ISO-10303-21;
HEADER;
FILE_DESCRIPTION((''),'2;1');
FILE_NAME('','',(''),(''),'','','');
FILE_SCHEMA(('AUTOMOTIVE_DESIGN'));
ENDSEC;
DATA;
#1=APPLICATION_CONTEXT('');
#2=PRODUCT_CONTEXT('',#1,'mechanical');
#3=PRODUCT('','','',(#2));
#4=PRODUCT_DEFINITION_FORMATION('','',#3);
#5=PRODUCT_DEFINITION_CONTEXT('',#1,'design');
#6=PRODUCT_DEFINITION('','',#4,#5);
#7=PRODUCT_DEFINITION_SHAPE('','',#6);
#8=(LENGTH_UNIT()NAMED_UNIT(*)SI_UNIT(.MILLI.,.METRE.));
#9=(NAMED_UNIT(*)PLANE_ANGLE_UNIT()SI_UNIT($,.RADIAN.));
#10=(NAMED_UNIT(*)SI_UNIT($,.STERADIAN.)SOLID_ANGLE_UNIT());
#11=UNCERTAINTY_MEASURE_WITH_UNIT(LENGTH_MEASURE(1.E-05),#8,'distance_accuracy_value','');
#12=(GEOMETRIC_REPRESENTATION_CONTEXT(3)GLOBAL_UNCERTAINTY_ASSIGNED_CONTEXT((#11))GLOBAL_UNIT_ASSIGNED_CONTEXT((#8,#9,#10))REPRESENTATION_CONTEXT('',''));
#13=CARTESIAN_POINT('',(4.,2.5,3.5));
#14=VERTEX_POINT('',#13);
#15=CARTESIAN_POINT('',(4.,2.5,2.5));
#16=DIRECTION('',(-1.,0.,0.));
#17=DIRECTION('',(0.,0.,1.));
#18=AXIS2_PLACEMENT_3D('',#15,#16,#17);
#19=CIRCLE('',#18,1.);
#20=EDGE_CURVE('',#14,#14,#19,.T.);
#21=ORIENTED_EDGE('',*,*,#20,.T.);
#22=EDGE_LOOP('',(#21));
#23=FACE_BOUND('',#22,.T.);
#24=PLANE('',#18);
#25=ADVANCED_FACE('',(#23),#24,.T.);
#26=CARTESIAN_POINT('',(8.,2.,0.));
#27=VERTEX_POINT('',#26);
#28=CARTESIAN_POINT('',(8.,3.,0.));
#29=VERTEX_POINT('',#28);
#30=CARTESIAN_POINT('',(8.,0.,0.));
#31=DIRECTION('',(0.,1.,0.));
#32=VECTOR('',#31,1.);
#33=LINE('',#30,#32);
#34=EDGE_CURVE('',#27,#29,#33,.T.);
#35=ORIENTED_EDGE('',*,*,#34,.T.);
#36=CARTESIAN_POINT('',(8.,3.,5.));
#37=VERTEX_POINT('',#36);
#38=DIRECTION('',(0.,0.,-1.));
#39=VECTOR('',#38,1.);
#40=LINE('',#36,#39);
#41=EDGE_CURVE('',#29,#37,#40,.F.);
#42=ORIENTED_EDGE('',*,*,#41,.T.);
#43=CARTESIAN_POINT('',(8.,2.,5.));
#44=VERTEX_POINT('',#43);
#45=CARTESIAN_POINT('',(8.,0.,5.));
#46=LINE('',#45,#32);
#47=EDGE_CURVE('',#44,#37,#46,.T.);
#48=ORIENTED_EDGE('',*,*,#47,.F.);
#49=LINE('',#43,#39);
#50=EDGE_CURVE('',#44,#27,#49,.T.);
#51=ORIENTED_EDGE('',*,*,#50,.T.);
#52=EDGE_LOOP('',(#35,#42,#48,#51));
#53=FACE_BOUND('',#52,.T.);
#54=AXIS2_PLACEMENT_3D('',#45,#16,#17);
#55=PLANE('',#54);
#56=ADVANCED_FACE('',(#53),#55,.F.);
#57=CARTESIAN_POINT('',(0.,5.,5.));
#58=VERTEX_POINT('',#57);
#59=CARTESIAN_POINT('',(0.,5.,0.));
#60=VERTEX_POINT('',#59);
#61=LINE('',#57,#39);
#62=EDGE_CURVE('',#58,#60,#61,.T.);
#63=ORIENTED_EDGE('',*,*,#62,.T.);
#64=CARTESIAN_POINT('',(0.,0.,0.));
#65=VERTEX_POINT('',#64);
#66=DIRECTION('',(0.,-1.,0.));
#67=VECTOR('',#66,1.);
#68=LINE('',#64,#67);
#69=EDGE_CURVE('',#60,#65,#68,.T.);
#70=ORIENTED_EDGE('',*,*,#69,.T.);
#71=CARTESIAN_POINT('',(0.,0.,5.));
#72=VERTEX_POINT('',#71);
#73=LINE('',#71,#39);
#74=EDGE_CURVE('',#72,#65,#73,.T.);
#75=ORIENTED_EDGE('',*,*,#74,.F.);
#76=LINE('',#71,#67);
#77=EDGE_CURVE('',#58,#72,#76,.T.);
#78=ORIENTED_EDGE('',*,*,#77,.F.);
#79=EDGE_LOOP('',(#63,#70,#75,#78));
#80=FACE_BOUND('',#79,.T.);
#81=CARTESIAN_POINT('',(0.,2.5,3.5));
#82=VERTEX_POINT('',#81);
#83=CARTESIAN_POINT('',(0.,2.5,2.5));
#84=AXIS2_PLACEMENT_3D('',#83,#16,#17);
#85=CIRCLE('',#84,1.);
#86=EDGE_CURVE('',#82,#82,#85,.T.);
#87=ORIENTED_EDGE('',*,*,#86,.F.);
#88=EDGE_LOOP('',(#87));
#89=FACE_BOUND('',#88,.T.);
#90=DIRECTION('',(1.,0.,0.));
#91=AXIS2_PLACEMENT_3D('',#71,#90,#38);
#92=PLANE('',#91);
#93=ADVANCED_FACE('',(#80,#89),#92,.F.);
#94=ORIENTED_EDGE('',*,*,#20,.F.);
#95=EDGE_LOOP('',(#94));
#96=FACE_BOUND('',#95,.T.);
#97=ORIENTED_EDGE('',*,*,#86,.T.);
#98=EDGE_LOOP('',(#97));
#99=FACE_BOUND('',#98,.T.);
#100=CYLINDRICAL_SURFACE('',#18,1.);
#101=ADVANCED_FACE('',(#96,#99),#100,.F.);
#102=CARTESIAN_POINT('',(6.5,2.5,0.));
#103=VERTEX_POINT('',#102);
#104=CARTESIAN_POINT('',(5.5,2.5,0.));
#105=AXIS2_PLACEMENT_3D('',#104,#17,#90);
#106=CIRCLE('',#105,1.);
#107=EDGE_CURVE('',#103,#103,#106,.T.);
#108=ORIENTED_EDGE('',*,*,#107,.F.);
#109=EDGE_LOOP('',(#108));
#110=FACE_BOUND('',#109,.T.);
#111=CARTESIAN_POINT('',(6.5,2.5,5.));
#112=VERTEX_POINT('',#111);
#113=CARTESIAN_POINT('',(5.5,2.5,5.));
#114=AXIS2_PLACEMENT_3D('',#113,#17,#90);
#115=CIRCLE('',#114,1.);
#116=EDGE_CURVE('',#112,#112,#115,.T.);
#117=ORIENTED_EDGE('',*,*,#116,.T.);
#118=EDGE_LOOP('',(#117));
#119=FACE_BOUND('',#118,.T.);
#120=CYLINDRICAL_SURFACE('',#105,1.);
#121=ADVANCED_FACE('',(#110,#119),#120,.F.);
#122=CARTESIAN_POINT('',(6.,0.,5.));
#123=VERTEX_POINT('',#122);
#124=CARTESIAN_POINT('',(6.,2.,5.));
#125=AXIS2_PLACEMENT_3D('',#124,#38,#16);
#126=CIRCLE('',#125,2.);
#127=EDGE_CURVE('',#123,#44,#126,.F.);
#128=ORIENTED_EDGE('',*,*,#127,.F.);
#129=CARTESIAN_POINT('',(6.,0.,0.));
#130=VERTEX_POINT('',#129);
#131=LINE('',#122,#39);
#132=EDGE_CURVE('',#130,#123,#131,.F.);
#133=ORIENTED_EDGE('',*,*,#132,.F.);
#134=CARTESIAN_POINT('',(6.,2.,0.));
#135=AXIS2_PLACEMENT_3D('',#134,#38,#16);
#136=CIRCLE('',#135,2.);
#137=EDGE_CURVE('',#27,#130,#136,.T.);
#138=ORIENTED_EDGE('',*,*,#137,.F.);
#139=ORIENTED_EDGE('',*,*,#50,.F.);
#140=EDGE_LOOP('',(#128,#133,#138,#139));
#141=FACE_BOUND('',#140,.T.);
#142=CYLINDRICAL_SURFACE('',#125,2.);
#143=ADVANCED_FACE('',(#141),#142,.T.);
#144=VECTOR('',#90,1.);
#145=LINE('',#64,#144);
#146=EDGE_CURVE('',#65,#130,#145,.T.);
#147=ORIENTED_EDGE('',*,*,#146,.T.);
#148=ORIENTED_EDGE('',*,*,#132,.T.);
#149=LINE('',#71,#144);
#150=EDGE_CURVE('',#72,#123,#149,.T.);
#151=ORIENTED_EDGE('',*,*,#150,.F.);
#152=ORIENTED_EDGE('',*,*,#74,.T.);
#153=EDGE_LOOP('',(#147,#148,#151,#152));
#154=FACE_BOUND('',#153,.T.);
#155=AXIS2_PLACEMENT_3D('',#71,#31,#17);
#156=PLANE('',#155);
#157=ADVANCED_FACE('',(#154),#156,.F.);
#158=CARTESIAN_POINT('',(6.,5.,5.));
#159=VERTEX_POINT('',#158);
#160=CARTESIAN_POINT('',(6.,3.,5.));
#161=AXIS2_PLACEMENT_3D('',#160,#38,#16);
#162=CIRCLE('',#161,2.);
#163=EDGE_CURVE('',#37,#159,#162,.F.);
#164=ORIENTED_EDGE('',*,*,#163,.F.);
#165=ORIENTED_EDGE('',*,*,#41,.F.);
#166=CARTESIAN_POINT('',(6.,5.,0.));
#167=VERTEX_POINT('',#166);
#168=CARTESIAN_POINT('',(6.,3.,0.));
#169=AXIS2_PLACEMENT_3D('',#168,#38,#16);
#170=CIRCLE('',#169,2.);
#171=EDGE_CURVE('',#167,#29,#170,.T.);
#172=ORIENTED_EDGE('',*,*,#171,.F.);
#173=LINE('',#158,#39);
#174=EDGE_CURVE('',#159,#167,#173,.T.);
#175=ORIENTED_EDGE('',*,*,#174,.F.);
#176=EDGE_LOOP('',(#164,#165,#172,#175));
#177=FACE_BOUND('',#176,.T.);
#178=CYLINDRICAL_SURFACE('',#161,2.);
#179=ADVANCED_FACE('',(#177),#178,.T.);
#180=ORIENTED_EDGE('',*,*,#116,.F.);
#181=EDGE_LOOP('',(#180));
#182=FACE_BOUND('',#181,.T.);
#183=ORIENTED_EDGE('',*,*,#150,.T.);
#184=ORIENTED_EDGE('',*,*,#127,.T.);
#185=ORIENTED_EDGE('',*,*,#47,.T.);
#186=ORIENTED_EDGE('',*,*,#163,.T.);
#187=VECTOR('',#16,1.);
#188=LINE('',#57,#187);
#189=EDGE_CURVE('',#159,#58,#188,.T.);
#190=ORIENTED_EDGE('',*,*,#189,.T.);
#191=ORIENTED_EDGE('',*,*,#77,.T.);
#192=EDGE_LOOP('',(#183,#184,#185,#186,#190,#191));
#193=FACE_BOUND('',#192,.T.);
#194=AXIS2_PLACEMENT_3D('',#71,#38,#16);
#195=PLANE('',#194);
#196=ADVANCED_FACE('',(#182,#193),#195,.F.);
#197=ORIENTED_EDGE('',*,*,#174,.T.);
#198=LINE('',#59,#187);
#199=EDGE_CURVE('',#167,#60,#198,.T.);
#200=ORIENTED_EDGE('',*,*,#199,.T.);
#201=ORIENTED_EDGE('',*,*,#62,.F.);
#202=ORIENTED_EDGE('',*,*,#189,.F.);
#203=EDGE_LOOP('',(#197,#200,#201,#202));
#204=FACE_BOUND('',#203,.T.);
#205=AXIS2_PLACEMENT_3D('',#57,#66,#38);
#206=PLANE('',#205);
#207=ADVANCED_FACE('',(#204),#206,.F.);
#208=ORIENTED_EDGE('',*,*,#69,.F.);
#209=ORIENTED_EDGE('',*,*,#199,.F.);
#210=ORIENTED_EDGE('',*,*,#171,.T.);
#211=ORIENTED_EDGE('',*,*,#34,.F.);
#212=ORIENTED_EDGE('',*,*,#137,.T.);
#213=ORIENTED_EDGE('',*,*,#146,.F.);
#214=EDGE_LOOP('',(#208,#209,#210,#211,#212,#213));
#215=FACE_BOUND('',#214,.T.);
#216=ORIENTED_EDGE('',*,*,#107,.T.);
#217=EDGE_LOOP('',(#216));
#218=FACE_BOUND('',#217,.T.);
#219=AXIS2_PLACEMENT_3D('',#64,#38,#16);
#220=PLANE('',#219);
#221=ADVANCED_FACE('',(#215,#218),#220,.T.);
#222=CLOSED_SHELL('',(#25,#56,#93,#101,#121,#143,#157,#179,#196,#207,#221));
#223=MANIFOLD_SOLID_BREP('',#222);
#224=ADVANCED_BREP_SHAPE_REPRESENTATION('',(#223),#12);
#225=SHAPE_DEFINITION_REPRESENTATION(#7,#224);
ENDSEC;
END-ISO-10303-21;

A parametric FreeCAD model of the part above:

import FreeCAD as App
import Part
import Sketcher
from FreeCAD import Vector


def edges_at(feature, points):
    """Names of the edges that pass closest to the given points."""
    edges = feature.Shape.Edges
    near = lambda p: min(range(len(edges)), key=lambda i: edges[i].distToShape(Part.Vertex(*p))[0])
    return sorted({f"Edge{near(p) + 1}" for p in points})

doc = App.newDocument("Part")
body = doc.addObject("PartDesign::Body", "Body")

# Sketch on XY plane
sketch1 = body.newObject("Sketcher::SketchObject", "Sketch")
sketch1.AttachmentSupport = (doc.getObject("XY_Plane"), [""])
sketch1.MapMode = "FlatFace"
sketch1.addGeometry([
    Part.LineSegment(Vector(0, 5, 0), Vector(0, 0, 0)),
    Part.LineSegment(Vector(0, 0, 0), Vector(8, 0, 0)),
    Part.LineSegment(Vector(8, 0, 0), Vector(8, 5, 0)),
    Part.LineSegment(Vector(8, 5, 0), Vector(0, 5, 0)),
], False)
sketch1.addConstraint([
    Sketcher.Constraint("Coincident", 0, 2, 1, 1),
    Sketcher.Constraint("Coincident", 1, 2, 2, 1),
    Sketcher.Constraint("Coincident", 2, 2, 3, 1),
    Sketcher.Constraint("Coincident", 3, 2, 0, 1),
    Sketcher.Constraint("Vertical", 0),
    Sketcher.Constraint("Horizontal", 1),
    Sketcher.Constraint("Vertical", 2),
    Sketcher.Constraint("Horizontal", 3),
    Sketcher.Constraint("Coincident", 0, 2, -1, 1),
    Sketcher.Constraint("DistanceX", 1, 1, 1, 2, 8.0),
    Sketcher.Constraint("DistanceY", 0, 2, 0, 1, 5.0),
])
pad1 = body.newObject("PartDesign::Pad", "Pad")
pad1.Profile = sketch1
pad1.Length = 5

# Sketch on YZ plane
sketch2 = body.newObject("Sketcher::SketchObject", "Sketch001")
sketch2.AttachmentSupport = (doc.getObject("YZ_Plane"), [""])
sketch2.MapMode = "FlatFace"
sketch2.addGeometry(Part.Circle(Vector(2.5, 2.5, 0), Vector(0, 0, 1), 1), False)
sketch2.addConstraint([
    Sketcher.Constraint("Diameter", 0, 2.0),
    Sketcher.Constraint("DistanceX", -1, 1, 0, 3, 2.5),
    Sketcher.Constraint("DistanceY", -1, 1, 0, 3, 2.5),
])
pocket1 = body.newObject("PartDesign::Pocket", "Pocket")
pocket1.Profile = sketch2
pocket1.Length = 4
pocket1.Reversed = True

# Sketch on XY plane
sketch3 = body.newObject("Sketcher::SketchObject", "Sketch002")
sketch3.AttachmentSupport = (doc.getObject("XY_Plane"), [""])
sketch3.MapMode = "FlatFace"
sketch3.AttachmentOffset = App.Placement(Vector(0, 0, 5), App.Rotation())
sketch3.addGeometry(Part.Circle(Vector(5.5, 2.5, 0), Vector(0, 0, 1), 1), False)
sketch3.addConstraint([
    Sketcher.Constraint("Diameter", 0, 2.0),
    Sketcher.Constraint("DistanceX", -1, 1, 0, 3, 5.5),
    Sketcher.Constraint("DistanceY", -1, 1, 0, 3, 2.5),
])
pocket2 = body.newObject("PartDesign::Pocket", "Pocket001")
pocket2.Profile = sketch3
pocket2.Length = 5
doc.recompute()

fillet = body.newObject("PartDesign::Fillet", "Fillet")
fillet.Base = (pocket2, edges_at(pocket2, [(8, 5, 2.5), (8, 0, 2.5)]))
fillet.Radius = 2

doc.recompute()
